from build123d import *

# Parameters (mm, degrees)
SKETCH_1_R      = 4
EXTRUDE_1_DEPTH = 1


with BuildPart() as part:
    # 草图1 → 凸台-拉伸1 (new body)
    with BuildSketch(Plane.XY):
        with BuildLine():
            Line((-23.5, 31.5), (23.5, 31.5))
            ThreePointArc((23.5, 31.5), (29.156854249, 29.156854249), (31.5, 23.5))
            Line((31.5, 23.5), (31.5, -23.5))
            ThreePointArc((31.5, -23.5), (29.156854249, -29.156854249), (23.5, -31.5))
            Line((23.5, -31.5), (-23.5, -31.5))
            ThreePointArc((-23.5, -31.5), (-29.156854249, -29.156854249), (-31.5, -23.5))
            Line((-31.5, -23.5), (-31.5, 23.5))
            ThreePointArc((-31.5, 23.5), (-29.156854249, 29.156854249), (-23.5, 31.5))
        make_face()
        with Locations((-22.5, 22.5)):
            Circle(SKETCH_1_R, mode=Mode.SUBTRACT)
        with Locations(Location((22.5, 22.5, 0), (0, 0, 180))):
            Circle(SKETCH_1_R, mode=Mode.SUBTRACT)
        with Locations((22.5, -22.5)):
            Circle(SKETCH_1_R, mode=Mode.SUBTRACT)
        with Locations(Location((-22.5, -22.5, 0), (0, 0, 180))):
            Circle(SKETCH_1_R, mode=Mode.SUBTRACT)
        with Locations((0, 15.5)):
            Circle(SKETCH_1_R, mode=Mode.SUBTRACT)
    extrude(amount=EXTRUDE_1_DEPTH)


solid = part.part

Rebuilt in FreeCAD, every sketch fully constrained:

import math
import FreeCAD as App
import Part
import Sketcher

V = App.Vector

doc = App.newDocument("Part")
body = doc.addObject("PartDesign::Body", "Body")

sketch1 = doc.addObject("Sketcher::SketchObject", "Sketch")
body.addObject(sketch1)
sketch1.AttachmentSupport = (doc.XY_Plane, [""])
sketch1.MapMode = "FlatFace"
sketch1.addGeometry(Part.LineSegment(V(23.5, 31.5, 0), V(-23.5, 31.5, 0)), False)
sketch1.addGeometry(Part.ArcOfCircle(Part.Circle(V(-23.5, 23.5, 0), V(0, 0, 1), 8), math.radians(90), math.radians(180)), False)
sketch1.addGeometry(Part.LineSegment(V(-31.5, 23.5, 0), V(-31.5, -23.5, 0)), False)
sketch1.addGeometry(Part.ArcOfCircle(Part.Circle(V(-23.5, -23.5, 0), V(0, 0, 1), 8), math.radians(-180), math.radians(-90)), False)
sketch1.addGeometry(Part.LineSegment(V(-23.5, -31.5, 0), V(23.5, -31.5, 0)), False)
sketch1.addGeometry(Part.ArcOfCircle(Part.Circle(V(23.5, -23.5, 0), V(0, 0, 1), 8), math.radians(-90), math.radians(0)), False)
sketch1.addGeometry(Part.LineSegment(V(31.5, -23.5, 0), V(31.5, 23.5, 0)), False)
sketch1.addGeometry(Part.ArcOfCircle(Part.Circle(V(23.5, 23.5, 0), V(0, 0, 1), 8), math.radians(0), math.radians(90)), False)
sketch1.addGeometry(Part.Circle(V(22.5, -22.5, 0), V(0, 0, 1), 4), False)
sketch1.addGeometry(Part.Circle(V(-22.5, -22.5, 0), V(0, 0, 1), 4), False)
sketch1.addGeometry(Part.Circle(V(22.5, 22.5, 0), V(0, 0, 1), 4), False)
sketch1.addGeometry(Part.Circle(V(0, 15.5, 0), V(0, 0, 1), 4), False)
sketch1.addGeometry(Part.Circle(V(-22.5, 22.5, 0), V(0, 0, 1), 4), False)
sketch1.addConstraint(Sketcher.Constraint("Tangent", 0, 2, 1, 1))
sketch1.addConstraint(Sketcher.Constraint("Tangent", 1, 2, 2, 1))
sketch1.addConstraint(Sketcher.Constraint("Tangent", 2, 2, 3, 1))
sketch1.addConstraint(Sketcher.Constraint("Tangent", 3, 2, 4, 1))
sketch1.addConstraint(Sketcher.Constraint("Tangent", 4, 2, 5, 1))
sketch1.addConstraint(Sketcher.Constraint("Tangent", 5, 2, 6, 1))
sketch1.addConstraint(Sketcher.Constraint("Tangent", 6, 2, 7, 1))
sketch1.addConstraint(Sketcher.Constraint("Tangent", 7, 2, 0, 1))
sketch1.addConstraint(Sketcher.Constraint("Horizontal", 0))
sketch1.addConstraint(Sketcher.Constraint("Vertical", 2))
sketch1.addConstraint(Sketcher.Constraint("Horizontal", 4))
sketch1.addConstraint(Sketcher.Constraint("Vertical", 6))
sketch1.addConstraint(Sketcher.Constraint("Equal", 1, 3))
sketch1.addConstraint(Sketcher.Constraint("Equal", 3, 5))
sketch1.addConstraint(Sketcher.Constraint("Equal", 5, 7))
sketch1.addConstraint(Sketcher.Constraint("Equal", 8, 9))
sketch1.addConstraint(Sketcher.Constraint("Equal", 9, 10))
sketch1.addConstraint(Sketcher.Constraint("Equal", 10, 11))
sketch1.addConstraint(Sketcher.Constraint("Equal", 11, 12))
sketch1.addConstraint(Sketcher.Constraint("Symmetric", 1, 3, 5, 3, -1, 1))
sketch1.addConstraint(Sketcher.Constraint("Symmetric", 9, 3, 10, 3, -1, 1))
sketch1.addConstraint(Sketcher.Constraint("Symmetric", 8, 3, 12, 3, -1, 1))
sketch1.addConstraint(Sketcher.Constraint("Symmetric", 8, 3, 9, 3, -2))
sketch1.addConstraint(Sketcher.Constraint("PointOnObject", 11, 3, -2))
sketch1.addConstraint(Sketcher.Constraint("Equal", 4, 2))
sketch1.addConstraint(Sketcher.Constraint("Diameter", 8, 8.0))
sketch1.addConstraint(Sketcher.Constraint("Radius", 1, 8.0))
sketch1.addConstraint(Sketcher.Constraint("DistanceX", 0, 2, 0, 1, 47.0))
sketch1.addConstraint(Sketcher.Constraint("DistanceX", 8, 3, 5, 3, 1.0))
sketch1.addConstraint(Sketcher.Constraint("DistanceY", 5, 3, 8, 3, 1.0))
sketch1.addConstraint(Sketcher.Constraint("DistanceY", 11, 3, 10, 3, 7.0))
pad1 = doc.addObject("PartDesign::Pad", "Pad")
body.addObject(pad1)
pad1.Profile = sketch1
pad1.Length = 1

doc.recompute()
